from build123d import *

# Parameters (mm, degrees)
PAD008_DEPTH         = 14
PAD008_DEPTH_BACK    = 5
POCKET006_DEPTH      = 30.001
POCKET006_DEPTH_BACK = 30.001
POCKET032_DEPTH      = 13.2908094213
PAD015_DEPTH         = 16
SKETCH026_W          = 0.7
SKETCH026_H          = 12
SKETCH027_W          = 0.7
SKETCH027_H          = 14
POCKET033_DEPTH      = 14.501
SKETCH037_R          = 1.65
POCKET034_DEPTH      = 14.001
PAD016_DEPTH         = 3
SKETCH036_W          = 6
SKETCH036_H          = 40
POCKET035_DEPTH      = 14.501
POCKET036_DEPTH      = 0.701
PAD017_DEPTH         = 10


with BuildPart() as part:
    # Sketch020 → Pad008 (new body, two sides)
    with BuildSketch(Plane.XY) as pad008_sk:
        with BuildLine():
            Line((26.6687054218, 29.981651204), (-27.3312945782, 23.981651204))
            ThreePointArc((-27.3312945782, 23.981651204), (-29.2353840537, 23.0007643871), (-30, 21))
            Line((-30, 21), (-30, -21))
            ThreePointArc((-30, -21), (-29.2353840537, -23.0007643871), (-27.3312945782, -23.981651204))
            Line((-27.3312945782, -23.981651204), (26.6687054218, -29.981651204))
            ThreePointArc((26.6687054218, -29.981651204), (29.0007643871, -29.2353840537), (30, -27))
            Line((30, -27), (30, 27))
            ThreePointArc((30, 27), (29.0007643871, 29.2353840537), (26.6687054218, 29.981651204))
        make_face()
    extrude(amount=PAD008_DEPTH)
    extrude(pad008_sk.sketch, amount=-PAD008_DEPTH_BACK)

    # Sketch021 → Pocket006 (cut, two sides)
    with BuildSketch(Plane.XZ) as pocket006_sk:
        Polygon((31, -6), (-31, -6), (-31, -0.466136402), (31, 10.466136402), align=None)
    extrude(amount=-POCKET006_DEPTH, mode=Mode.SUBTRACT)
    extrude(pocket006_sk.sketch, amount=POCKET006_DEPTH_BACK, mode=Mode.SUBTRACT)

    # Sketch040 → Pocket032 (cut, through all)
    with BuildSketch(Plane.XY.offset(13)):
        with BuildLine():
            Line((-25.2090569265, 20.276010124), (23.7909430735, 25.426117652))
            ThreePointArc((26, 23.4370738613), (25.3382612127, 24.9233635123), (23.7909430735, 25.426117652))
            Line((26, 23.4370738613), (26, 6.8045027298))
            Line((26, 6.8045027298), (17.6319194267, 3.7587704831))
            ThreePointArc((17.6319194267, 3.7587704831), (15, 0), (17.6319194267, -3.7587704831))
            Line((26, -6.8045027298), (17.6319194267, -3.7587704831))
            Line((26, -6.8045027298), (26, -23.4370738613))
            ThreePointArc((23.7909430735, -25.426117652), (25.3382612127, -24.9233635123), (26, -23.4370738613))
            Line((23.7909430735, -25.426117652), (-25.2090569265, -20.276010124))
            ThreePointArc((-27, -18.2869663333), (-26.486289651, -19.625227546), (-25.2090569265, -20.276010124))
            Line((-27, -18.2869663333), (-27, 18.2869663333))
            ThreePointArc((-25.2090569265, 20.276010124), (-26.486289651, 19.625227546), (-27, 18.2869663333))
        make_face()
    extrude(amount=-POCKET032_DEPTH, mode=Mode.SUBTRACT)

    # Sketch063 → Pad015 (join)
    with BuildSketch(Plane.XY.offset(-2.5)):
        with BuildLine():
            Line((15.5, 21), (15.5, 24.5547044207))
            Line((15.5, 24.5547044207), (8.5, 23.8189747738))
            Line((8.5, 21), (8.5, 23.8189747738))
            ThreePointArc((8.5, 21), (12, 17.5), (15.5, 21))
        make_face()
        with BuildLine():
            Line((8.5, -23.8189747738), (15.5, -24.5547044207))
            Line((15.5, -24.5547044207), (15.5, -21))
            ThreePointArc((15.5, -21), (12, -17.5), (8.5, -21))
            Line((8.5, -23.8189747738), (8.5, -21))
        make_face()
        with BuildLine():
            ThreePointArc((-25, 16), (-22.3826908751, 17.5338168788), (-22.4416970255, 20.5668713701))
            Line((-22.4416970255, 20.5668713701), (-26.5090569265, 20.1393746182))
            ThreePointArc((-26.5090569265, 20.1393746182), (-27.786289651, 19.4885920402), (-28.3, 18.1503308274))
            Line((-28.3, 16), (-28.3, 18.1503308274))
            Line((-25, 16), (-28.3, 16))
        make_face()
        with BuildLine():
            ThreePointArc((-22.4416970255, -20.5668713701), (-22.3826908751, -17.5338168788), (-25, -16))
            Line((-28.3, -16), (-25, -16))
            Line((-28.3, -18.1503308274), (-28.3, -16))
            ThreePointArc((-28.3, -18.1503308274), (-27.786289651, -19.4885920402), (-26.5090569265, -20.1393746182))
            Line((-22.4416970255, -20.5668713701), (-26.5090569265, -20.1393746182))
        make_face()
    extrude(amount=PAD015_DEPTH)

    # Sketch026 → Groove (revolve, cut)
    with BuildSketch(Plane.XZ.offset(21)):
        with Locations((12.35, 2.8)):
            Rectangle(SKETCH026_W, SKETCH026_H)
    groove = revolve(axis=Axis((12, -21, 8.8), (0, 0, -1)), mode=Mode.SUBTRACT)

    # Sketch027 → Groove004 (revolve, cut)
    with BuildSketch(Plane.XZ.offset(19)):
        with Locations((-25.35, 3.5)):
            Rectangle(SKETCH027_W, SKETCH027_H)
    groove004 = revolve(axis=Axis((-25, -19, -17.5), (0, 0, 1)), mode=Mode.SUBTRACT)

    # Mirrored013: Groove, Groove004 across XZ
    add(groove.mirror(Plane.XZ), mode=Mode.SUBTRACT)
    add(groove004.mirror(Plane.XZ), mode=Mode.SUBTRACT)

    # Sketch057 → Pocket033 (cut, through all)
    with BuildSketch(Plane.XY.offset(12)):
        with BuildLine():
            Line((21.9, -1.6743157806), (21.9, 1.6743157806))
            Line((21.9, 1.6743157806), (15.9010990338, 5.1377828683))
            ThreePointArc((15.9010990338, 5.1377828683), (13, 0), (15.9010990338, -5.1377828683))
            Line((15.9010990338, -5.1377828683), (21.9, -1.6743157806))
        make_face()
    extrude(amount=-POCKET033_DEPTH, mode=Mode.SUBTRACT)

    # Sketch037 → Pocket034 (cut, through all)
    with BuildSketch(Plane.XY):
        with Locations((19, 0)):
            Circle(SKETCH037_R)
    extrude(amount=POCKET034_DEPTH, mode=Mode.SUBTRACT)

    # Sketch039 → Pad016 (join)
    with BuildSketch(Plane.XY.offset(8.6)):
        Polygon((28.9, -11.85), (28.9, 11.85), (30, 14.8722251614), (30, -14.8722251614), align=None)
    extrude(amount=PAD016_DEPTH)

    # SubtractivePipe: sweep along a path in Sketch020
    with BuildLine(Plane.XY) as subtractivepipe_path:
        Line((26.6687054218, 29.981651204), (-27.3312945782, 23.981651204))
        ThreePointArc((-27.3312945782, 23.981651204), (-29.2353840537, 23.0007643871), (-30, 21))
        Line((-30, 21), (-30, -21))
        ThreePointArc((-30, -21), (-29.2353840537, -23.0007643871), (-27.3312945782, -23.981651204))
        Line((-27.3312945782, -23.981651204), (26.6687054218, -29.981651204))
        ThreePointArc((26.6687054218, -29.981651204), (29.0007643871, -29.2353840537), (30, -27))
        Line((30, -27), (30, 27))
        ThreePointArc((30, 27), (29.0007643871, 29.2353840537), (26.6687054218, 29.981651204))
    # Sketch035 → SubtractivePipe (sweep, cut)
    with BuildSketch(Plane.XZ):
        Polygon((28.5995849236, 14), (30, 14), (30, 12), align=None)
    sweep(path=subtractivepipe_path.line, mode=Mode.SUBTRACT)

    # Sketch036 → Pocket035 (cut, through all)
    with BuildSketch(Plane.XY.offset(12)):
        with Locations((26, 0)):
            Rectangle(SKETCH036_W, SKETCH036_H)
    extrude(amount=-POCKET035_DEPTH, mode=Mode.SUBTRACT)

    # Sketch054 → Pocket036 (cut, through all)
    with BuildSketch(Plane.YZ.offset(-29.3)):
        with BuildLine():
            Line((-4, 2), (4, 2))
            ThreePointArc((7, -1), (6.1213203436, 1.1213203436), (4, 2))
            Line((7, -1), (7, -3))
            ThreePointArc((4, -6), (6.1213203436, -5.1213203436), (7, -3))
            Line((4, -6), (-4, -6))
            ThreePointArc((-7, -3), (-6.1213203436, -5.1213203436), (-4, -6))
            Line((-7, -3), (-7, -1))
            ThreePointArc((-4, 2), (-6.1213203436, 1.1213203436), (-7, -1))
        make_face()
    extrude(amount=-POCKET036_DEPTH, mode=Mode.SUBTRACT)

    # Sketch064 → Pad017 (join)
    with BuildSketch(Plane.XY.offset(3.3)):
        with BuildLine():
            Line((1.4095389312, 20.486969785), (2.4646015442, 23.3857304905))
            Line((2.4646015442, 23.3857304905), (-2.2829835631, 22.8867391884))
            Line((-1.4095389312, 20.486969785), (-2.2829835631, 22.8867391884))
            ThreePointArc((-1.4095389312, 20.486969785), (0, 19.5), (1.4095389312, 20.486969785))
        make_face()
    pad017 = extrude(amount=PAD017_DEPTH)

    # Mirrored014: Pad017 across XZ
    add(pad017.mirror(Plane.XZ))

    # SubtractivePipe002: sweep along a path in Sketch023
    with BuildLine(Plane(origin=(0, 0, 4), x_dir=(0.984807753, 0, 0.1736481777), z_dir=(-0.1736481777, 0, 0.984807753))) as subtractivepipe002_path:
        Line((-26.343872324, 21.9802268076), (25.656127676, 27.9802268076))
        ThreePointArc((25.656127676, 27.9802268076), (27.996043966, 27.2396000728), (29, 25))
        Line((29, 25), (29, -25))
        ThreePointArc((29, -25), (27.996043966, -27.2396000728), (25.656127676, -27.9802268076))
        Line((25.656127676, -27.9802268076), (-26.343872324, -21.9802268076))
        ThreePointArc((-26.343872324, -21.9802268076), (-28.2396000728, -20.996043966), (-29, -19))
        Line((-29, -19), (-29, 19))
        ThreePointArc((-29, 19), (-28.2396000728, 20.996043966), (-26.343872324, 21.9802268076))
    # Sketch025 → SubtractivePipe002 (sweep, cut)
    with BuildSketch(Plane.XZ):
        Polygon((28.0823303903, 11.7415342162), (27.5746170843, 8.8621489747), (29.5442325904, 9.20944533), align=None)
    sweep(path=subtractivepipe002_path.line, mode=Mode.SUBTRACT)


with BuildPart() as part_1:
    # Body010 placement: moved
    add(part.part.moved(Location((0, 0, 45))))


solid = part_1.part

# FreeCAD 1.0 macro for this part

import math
import FreeCAD as App
import Part
import Sketcher
from FreeCAD import Vector
Q = App.Units.Quantity


def add_polygon(sketch, points):
    """Adds a closed chain of lines whose ends are joined by coincident constraints."""
    first, n = sketch.GeometryCount, len(points)
    for a, b in zip(points, points[1:] + points[:1]):
        sketch.addGeometry(Part.LineSegment(App.Vector(*a, 0), App.Vector(*b, 0)), False)
    for i in range(n):
        sketch.addConstraint(Sketcher.Constraint("Coincident", first + i, 2, first + (i + 1) % n, 1))

doc = App.newDocument("Part")
body = doc.addObject("PartDesign::Body", "Body")

# Sketch on XY plane
sketch1 = doc.addObject("Sketcher::SketchObject", "Sketch")
body.addObject(sketch1)
sketch1.AttachmentSupport = (doc.XY_Plane, [""])
sketch1.MapMode = "FlatFace"
sketch1.addGeometry(Part.LineSegment(Vector(26.7, 30, 0), Vector(-27.3, 24, 0)), False)
sketch1.addGeometry(Part.ArcOfCircle(Part.Circle(Vector(-27, 21, 0), Vector(0, 0, 1), 3), math.radians(96), math.radians(180)), False)
sketch1.addGeometry(Part.LineSegment(Vector(-30, 21, 0), Vector(-30, -21, 0)), False)
sketch1.addGeometry(Part.ArcOfCircle(Part.Circle(Vector(-27, -21, 0), Vector(0, 0, 1), 3), math.radians(180), math.radians(264)), False)
sketch1.addGeometry(Part.LineSegment(Vector(-27.3, -24, 0), Vector(26.7, -30, 0)), False)
sketch1.addGeometry(Part.ArcOfCircle(Part.Circle(Vector(27, -27, 0), Vector(0, 0, 1), 3), math.radians(-96), math.radians(0)), False)
sketch1.addGeometry(Part.LineSegment(Vector(30, -27, 0), Vector(30, 27, 0)), False)
sketch1.addGeometry(Part.ArcOfCircle(Part.Circle(Vector(27, 27, 0), Vector(0, 0, 1), 3), math.radians(0), math.radians(96)), False)
sketch1.addConstraint(Sketcher.Constraint("Tangent", 0, 2, 1, 1))
sketch1.addConstraint(Sketcher.Constraint("Tangent", 1, 2, 2, 1))
sketch1.addConstraint(Sketcher.Constraint("Tangent", 2, 2, 3, 1))
sketch1.addConstraint(Sketcher.Constraint("Tangent", 3, 2, 4, 1))
sketch1.addConstraint(Sketcher.Constraint("Tangent", 4, 2, 5, 1))
sketch1.addConstraint(Sketcher.Constraint("Tangent", 5, 2, 6, 1))
sketch1.addConstraint(Sketcher.Constraint("Tangent", 6, 2, 7, 1))
sketch1.addConstraint(Sketcher.Constraint("Tangent", 7, 2, 0, 1))
sketch1.addConstraint(Sketcher.Constraint("Vertical", 2))
sketch1.addConstraint(Sketcher.Constraint("Vertical", 6))
sketch1.addConstraint(Sketcher.Constraint("Equal", 1, 3))
sketch1.addConstraint(Sketcher.Constraint("Equal", 3, 5))
sketch1.addConstraint(Sketcher.Constraint("Equal", 5, 7))
sketch1.addConstraint(Sketcher.Constraint("Symmetric", 0, 2, 3, 2, -1))
sketch1.addConstraint(Sketcher.Constraint("Radius", 1, 3.0))
sketch1.addConstraint(Sketcher.Constraint("DistanceY", 2, 2, 2, 1, 42.0))
sketch1.addConstraint(Sketcher.Constraint("DistanceY", 6, 1, 6, 2, 54.0))
sketch1.addConstraint(Sketcher.Constraint("DistanceX", 1, 3, -1, 1, 27.0))
sketch1.addConstraint(Sketcher.Constraint("DistanceX", -1, 1, 5, 3, 27.0))
pad1 = doc.addObject("PartDesign::Pad", "Pad")
body.addObject(pad1)
pad1.Profile = sketch1
pad1.Type = "TwoLengths"
pad1.Length = 14
pad1.Length2 = 5

# Sketch on XZ plane
sketch2 = doc.addObject("Sketcher::SketchObject", "Sketch001")
body.addObject(sketch2)
sketch2.AttachmentSupport = (doc.XZ_Plane, [""])
sketch2.MapMode = "FlatFace"
add_polygon(sketch2, [(-31, -6), (31, -6), (31, 10), (-31, 0)])  # lines 0-3
sketch2.addConstraint(Sketcher.Constraint("Horizontal", 0))
sketch2.addConstraint(Sketcher.Constraint("Vertical", 1))
sketch2.addConstraint(Sketcher.Constraint("Vertical", 3))
sketch2.addConstraint(Sketcher.Constraint("DistanceX", 0, 1, 0, 2, 62.0))
sketch2.addConstraint(Sketcher.Constraint("Angle", 2, Q("-170 deg")))
sketch2.addConstraint(Sketcher.Constraint("DistanceX", -1, 1, 0, 2, 31.0))
sketch2.addConstraint(Sketcher.Constraint("DistanceY", 0, 2, -1, 1, 6.0))
sketch2.addConstraint(Sketcher.Constraint("DistanceY", 1, 1, 1, 2, 16.466136))
pocket1 = doc.addObject("PartDesign::Pocket", "Pocket")
body.addObject(pocket1)
pocket1.Profile = sketch2
pocket1.Type = "ThroughAll"
pocket1.Midplane = True

# Sketch on XY plane
sketch3 = doc.addObject("Sketcher::SketchObject", "Sketch002")
body.addObject(sketch3)
sketch3.AttachmentSupport = (doc.XY_Plane, [""])
sketch3.MapMode = "FlatFace"
sketch3.AttachmentOffset = App.Placement(Vector(0, 0, 13), App.Rotation())
sketch3.addGeometry(Part.LineSegment(Vector(23.8, 25.4, 0), Vector(-25.2, 20.3, 0)), False)
sketch3.addGeometry(Part.ArcOfCircle(Part.Circle(Vector(-25, 18.3, 0), Vector(0, 0, 1), 2), math.radians(96), math.radians(180)), False)
sketch3.addGeometry(Part.LineSegment(Vector(-27, 18.3, 0), Vector(-27, -18.3, 0)), False)
sketch3.addGeometry(Part.ArcOfCircle(Part.Circle(Vector(-25, -18.3, 0), Vector(0, 0, 1), 2), math.radians(180), math.radians(264)), False)
sketch3.addGeometry(Part.LineSegment(Vector(-25.2, -20.3, 0), Vector(23.8, -25.4, 0)), False)
sketch3.addGeometry(Part.ArcOfCircle(Part.Circle(Vector(24, -23.4, 0), Vector(0, 0, 1), 2), math.radians(-96), math.radians(0)), False)
sketch3.addGeometry(Part.LineSegment(Vector(26, -23.4, 0), Vector(26, -6.8, 0)), False)
sketch3.addGeometry(Part.LineSegment(Vector(26, -6.8, 0), Vector(17.6, -3.8, 0)), False)
sketch3.addGeometry(Part.ArcOfCircle(Part.Circle(Vector(19, 0, 0), Vector(0, 0, 1), 4), math.radians(110), math.radians(250)), False)
sketch3.addGeometry(Part.LineSegment(Vector(17.6, 3.8, 0), Vector(26, 6.8, 0)), False)
sketch3.addGeometry(Part.LineSegment(Vector(26, 6.8, 0), Vector(26, 23.4, 0)), False)
sketch3.addGeometry(Part.ArcOfCircle(Part.Circle(Vector(24, 23.4, 0), Vector(0, 0, 1), 2), math.radians(0), math.radians(96)), False)
sketch3.addConstraint(Sketcher.Constraint("Tangent", 0, 2, 1, 1))
sketch3.addConstraint(Sketcher.Constraint("Tangent", 1, 2, 2, 1))
sketch3.addConstraint(Sketcher.Constraint("Tangent", 2, 2, 3, 1))
sketch3.addConstraint(Sketcher.Constraint("Tangent", 3, 2, 4, 1))
sketch3.addConstraint(Sketcher.Constraint("Tangent", 4, 2, 5, 1))
sketch3.addConstraint(Sketcher.Constraint("Tangent", 5, 2, 6, 1))
sketch3.addConstraint(Sketcher.Constraint("Coincident", 6, 2, 7, 1))
sketch3.addConstraint(Sketcher.Constraint("Tangent", 7, 2, 8, 2))
sketch3.addConstraint(Sketcher.Constraint("Tangent", 8, 1, 9, 1))
sketch3.addConstraint(Sketcher.Constraint("Coincident", 9, 2, 10, 1))
sketch3.addConstraint(Sketcher.Constraint("Tangent", 10, 2, 11, 1))
sketch3.addConstraint(Sketcher.Constraint("Tangent", 11, 2, 0, 1))
sketch3.addConstraint(Sketcher.Constraint("Vertical", 2))
sketch3.addConstraint(Sketcher.Constraint("Vertical", 6))
sketch3.addConstraint(Sketcher.Constraint("Vertical", 10))
sketch3.addConstraint(Sketcher.Constraint("Equal", 1, 3))
sketch3.addConstraint(Sketcher.Constraint("Equal", 3, 5))
sketch3.addConstraint(Sketcher.Constraint("Equal", 5, 11))
sketch3.addConstraint(Sketcher.Constraint("Symmetric", 5, 3, 11, 3, -1))
sketch3.addConstraint(Sketcher.Constraint("Symmetric", 7, 2, 8, 1, -1))
sketch3.addConstraint(Sketcher.Constraint("Vertical", 0, 2, 3, 2))
sketch3.addConstraint(Sketcher.Constraint("Radius", 1, 2.0))
sketch3.addConstraint(Sketcher.Constraint("Radius", 8, 4.0))
sketch3.addConstraint(Sketcher.Constraint("Angle", 0, Q("-174 deg")))
sketch3.addConstraint(Sketcher.Constraint("Angle", 7, Q("160 deg")))
sketch3.addConstraint(Sketcher.Constraint("DistanceX", 1, 3, -1, 1, 25.0))
sketch3.addConstraint(Sketcher.Constraint("DistanceX", -1, 1, 5, 3, 24.0))
sketch3.addConstraint(Sketcher.Constraint("DistanceX", -1, 1, 8, 3, 19.0))
sketch3.addConstraint(Sketcher.Constraint("DistanceY", 6, 1, 6, 2, 16.632571))
pocket2 = doc.addObject("PartDesign::Pocket", "Pocket001")
body.addObject(pocket2)
pocket2.Profile = sketch3
pocket2.Type = "ThroughAll"

# Sketch on XY plane
sketch4 = doc.addObject("Sketcher::SketchObject", "Sketch003")
body.addObject(sketch4)
sketch4.AttachmentSupport = (doc.XY_Plane, [""])
sketch4.MapMode = "FlatFace"
sketch4.AttachmentOffset = App.Placement(Vector(0, 0, -2.5), App.Rotation())
sketch4.addGeometry(Part.LineSegment(Vector(15.5, 21, 0), Vector(15.5, 24.6, 0)), False)
sketch4.addGeometry(Part.LineSegment(Vector(15.5, 24.6, 0), Vector(8.5, 23.8, 0)), False)
sketch4.addGeometry(Part.LineSegment(Vector(8.5, 23.8, 0), Vector(8.5, 21, 0)), False)
sketch4.addGeometry(Part.ArcOfCircle(Part.Circle(Vector(12, 21, 0), Vector(0, 0, 1), 3.5), math.radians(180), math.radians(360)), False)
sketch4.addGeometry(Part.LineSegment(Vector(8.5, -23.8, 0), Vector(15.5, -24.6, 0)), False)
sketch4.addGeometry(Part.LineSegment(Vector(15.5, -24.6, 0), Vector(15.5, -21, 0)), False)
sketch4.addGeometry(Part.ArcOfCircle(Part.Circle(Vector(12, -21, 0), Vector(0, 0, 1), 3.5), math.radians(0), math.radians(180)), False)
sketch4.addGeometry(Part.LineSegment(Vector(8.5, -21, 0), Vector(8.5, -23.8, 0)), False)
sketch4.addGeometry(Part.ArcOfCircle(Part.Circle(Vector(-25, 19, 0), Vector(0, 0, 1), 3), math.radians(-90), math.radians(31)), False)
sketch4.addGeometry(Part.LineSegment(Vector(-22.4, 20.6, 0), Vector(-26.5, 20.1, 0)), False)
sketch4.addGeometry(Part.ArcOfCircle(Part.Circle(Vector(-26.3, 18.2, 0), Vector(0, 0, 1), 2), math.radians(96), math.radians(180)), False)
sketch4.addGeometry(Part.LineSegment(Vector(-28.3, 18.2, 0), Vector(-28.3, 16, 0)), False)
sketch4.addGeometry(Part.LineSegment(Vector(-28.3, 16, 0), Vector(-25, 16, 0)), False)
sketch4.addGeometry(Part.ArcOfCircle(Part.Circle(Vector(-25, -19, 0), Vector(0, 0, 1), 3), math.radians(-31), math.radians(90)), False)
sketch4.addGeometry(Part.LineSegment(Vector(-25, -16, 0), Vector(-28.3, -16, 0)), False)
sketch4.addGeometry(Part.LineSegment(Vector(-28.3, -16, 0), Vector(-28.3, -18.2, 0)), False)
sketch4.addGeometry(Part.ArcOfCircle(Part.Circle(Vector(-26.3, -18.2, 0), Vector(0, 0, 1), 2), math.radians(180), math.radians(264)), False)
sketch4.addGeometry(Part.LineSegment(Vector(-26.5, -20.1, 0), Vector(-22.4, -20.6, 0)), False)
sketch4.addConstraint(Sketcher.Constraint("Coincident", 0, 2, 1, 1))
sketch4.addConstraint(Sketcher.Constraint("Coincident", 1, 2, 2, 1))
sketch4.addConstraint(Sketcher.Constraint("Tangent", 2, 2, 3, 1))
sketch4.addConstraint(Sketcher.Constraint("Tangent", 3, 2, 0, 1))
sketch4.addConstraint(Sketcher.Constraint("Coincident", 4, 2, 5, 1))
sketch4.addConstraint(Sketcher.Constraint("Tangent", 5, 2, 6, 1))
sketch4.addConstraint(Sketcher.Constraint("Tangent", 6, 2, 7, 1))
sketch4.addConstraint(Sketcher.Constraint("Coincident", 7, 2, 4, 1))
sketch4.addConstraint(Sketcher.Constraint("Coincident", 8, 2, 9, 1))
sketch4.addConstraint(Sketcher.Constraint("Tangent", 9, 2, 10, 1))
sketch4.addConstraint(Sketcher.Constraint("Tangent", 10, 2, 11, 1))
sketch4.addConstraint(Sketcher.Constraint("Coincident", 11, 2, 12, 1))
sketch4.addConstraint(Sketcher.Constraint("Tangent", 12, 2, 8, 1))
sketch4.addConstraint(Sketcher.Constraint("Tangent", 13, 2, 14, 1))
sketch4.addConstraint(Sketcher.Constraint("Coincident", 14, 2, 15, 1))
sketch4.addConstraint(Sketcher.Constraint("Tangent", 15, 2, 16, 1))
sketch4.addConstraint(Sketcher.Constraint("Tangent", 16, 2, 17, 1))
sketch4.addConstraint(Sketcher.Constraint("Coincident", 17, 2, 13, 1))
sketch4.addConstraint(Sketcher.Constraint("Vertical", 0))
sketch4.addConstraint(Sketcher.Constraint("Vertical", 2))
sketch4.addConstraint(Sketcher.Constraint("Vertical", 5))
sketch4.addConstraint(Sketcher.Constraint("Vertical", 7))
sketch4.addConstraint(Sketcher.Constraint("Vertical", 11))
sketch4.addConstraint(Sketcher.Constraint("Horizontal", 12))
sketch4.addConstraint(Sketcher.Constraint("Horizontal", 14))
sketch4.addConstraint(Sketcher.Constraint("Vertical", 15))
sketch4.addConstraint(Sketcher.Constraint("Equal", 3, 6))
sketch4.addConstraint(Sketcher.Constraint("Equal", 8, 13))
sketch4.addConstraint(Sketcher.Constraint("Equal", 10, 16))
sketch4.addConstraint(Sketcher.Constraint("Symmetric", 3, 3, 6, 3, -1))
sketch4.addConstraint(Sketcher.Constraint("Symmetric", 8, 3, 13, 3, -1))
sketch4.addConstraint(Sketcher.Constraint("Symmetric", 10, 3, 16, 3, -1))
sketch4.addConstraint(Sketcher.Constraint("Parallel", 1, 9))
sketch4.addConstraint(Sketcher.Constraint("Parallel", 4, 17))
sketch4.addConstraint(Sketcher.Constraint("Vertical", 9, 2, 16, 2))
sketch4.addConstraint(Sketcher.Constraint("Equal", 0, 5))
sketch4.addConstraint(Sketcher.Constraint("Radius", 8, 3.0))
sketch4.addConstraint(Sketcher.Constraint("Radius", 10, 2.0))
sketch4.addConstraint(Sketcher.Constraint("Radius", 3, 3.5))
sketch4.addConstraint(Sketcher.Constraint("Angle", 1, Q("-174 deg")))
sketch4.addConstraint(Sketcher.Constraint("DistanceX", 12, 1, 12, 2, 3.3))
sketch4.addConstraint(Sketcher.Constraint("DistanceX", -1, 1, 3, 3, 12.0))
sketch4.addConstraint(Sketcher.Constraint("DistanceY", -1, 1, 3, 3, 21.0))
sketch4.addConstraint(Sketcher.Constraint("DistanceX", 8, 3, -1, 1, 25.0))
sketch4.addConstraint(Sketcher.Constraint("DistanceY", -1, 1, 8, 3, 19.0))
sketch4.addConstraint(Sketcher.Constraint("DistanceY", 11, 2, 11, 1, 2.150331))
sketch4.addConstraint(Sketcher.Constraint("DistanceY", 9, 2, 1, 2, 3.6796))
pad2 = doc.addObject("PartDesign::Pad", "Pad001")
body.addObject(pad2)
pad2.Profile = sketch4
pad2.Length = 16

# Sketch on XZ plane
sketch5 = doc.addObject("Sketcher::SketchObject", "Sketch004")
body.addObject(sketch5)
sketch5.AttachmentSupport = (doc.XZ_Plane, [""])
sketch5.MapMode = "FlatFace"
sketch5.AttachmentOffset = App.Placement(Vector(0, 0, 21), App.Rotation())
add_polygon(sketch5, [(12, 8.8), (12, -3.2), (12.7, -3.2), (12.7, 8.8)])  # lines 0-3
sketch5.addGeometry(Part.LineSegment(Vector(12, 8.8, 0), Vector(12, -3.2, 0)), True)  # axis
sketch5.addConstraint(Sketcher.Constraint("Vertical", 0))
sketch5.addConstraint(Sketcher.Constraint("Horizontal", 1))
sketch5.addConstraint(Sketcher.Constraint("Vertical", 2))
sketch5.addConstraint(Sketcher.Constraint("Horizontal", 3))
sketch5.addConstraint(Sketcher.Constraint("Vertical", 4))
sketch5.addConstraint(Sketcher.Constraint("Coincident", 4, 1, 3, 2))
sketch5.addConstraint(Sketcher.Constraint("Horizontal", 1, 2, 4, 2))
sketch5.addConstraint(Sketcher.Constraint("DistanceY", 0, 2, 0, 1, 12.0))
sketch5.addConstraint(Sketcher.Constraint("DistanceX", 1, 1, 1, 2, 0.7))
sketch5.addConstraint(Sketcher.Constraint("DistanceX", -1, 1, 0, 2, 12.0))
sketch5.addConstraint(Sketcher.Constraint("DistanceY", 0, 2, -1, 1, 3.2))
groove = doc.addObject("PartDesign::Groove", "Groove")
body.addObject(groove)
groove.Profile = sketch5
groove.ReferenceAxis = (sketch5, ["Axis0"])
groove.Angle = 360

# Sketch on XZ plane
sketch6 = doc.addObject("Sketcher::SketchObject", "Sketch005")
body.addObject(sketch6)
sketch6.AttachmentSupport = (doc.XZ_Plane, [""])
sketch6.MapMode = "FlatFace"
sketch6.AttachmentOffset = App.Placement(Vector(0, 0, 19), App.Rotation())
add_polygon(sketch6, [(-25.7, 10.5), (-25.7, -3.5), (-25, -3.5), (-25, 10.5)])  # lines 0-3
sketch6.addGeometry(Part.LineSegment(Vector(-25, -3.5, 0), Vector(-25, 10.5, 0)), True)  # axis
sketch6.addConstraint(Sketcher.Constraint("Vertical", 0))
sketch6.addConstraint(Sketcher.Constraint("Horizontal", 1))
sketch6.addConstraint(Sketcher.Constraint("Vertical", 2))
sketch6.addConstraint(Sketcher.Constraint("Horizontal", 3))
sketch6.addConstraint(Sketcher.Constraint("Vertical", 4))
sketch6.addConstraint(Sketcher.Constraint("Coincident", 4, 1, 1, 2))
sketch6.addConstraint(Sketcher.Constraint("Horizontal", 3, 2, 4, 2))
sketch6.addConstraint(Sketcher.Constraint("DistanceY", 0, 2, 0, 1, 14.0))
sketch6.addConstraint(Sketcher.Constraint("DistanceX", 1, 1, 1, 2, 0.7))
sketch6.addConstraint(Sketcher.Constraint("DistanceX", 1, 2, -1, 1, 25.0))
sketch6.addConstraint(Sketcher.Constraint("DistanceY", 0, 2, -1, 1, 3.5))
groove2 = doc.addObject("PartDesign::Groove", "Groove001")
body.addObject(groove2)
groove2.Profile = sketch6
groove2.ReferenceAxis = (sketch6, ["Axis0"])
groove2.Angle = 360
doc.recompute()

mirrored = doc.addObject("PartDesign::Mirrored", "Mirrored")
body.addObject(mirrored)
mirrored.Originals = [groove, groove2]
mirrored.MirrorPlane = (doc.XZ_Plane, [""])
body.Tip = mirrored

# Sketch on XY plane
sketch7 = doc.addObject("Sketcher::SketchObject", "Sketch006")
body.addObject(sketch7)
sketch7.AttachmentSupport = (doc.XY_Plane, [""])
sketch7.MapMode = "FlatFace"
sketch7.AttachmentOffset = App.Placement(Vector(0, 0, 12), App.Rotation())
sketch7.addGeometry(Part.LineSegment(Vector(21.9, -1.7, 0), Vector(21.9, 1.7, 0)), False)
sketch7.addGeometry(Part.LineSegment(Vector(21.9, 1.7, 0), Vector(15.9, 5.1, 0)), False)
sketch7.addGeometry(Part.ArcOfCircle(Part.Circle(Vector(19, 0, 0), Vector(0, 0, 1), 6), math.radians(121), math.radians(239)), False)
sketch7.addGeometry(Part.LineSegment(Vector(15.9, -5.1, 0), Vector(21.9, -1.7, 0)), False)
sketch7.addConstraint(Sketcher.Constraint("Coincident", 0, 2, 1, 1))
sketch7.addConstraint(Sketcher.Constraint("Coincident", 1, 2, 2, 1))
sketch7.addConstraint(Sketcher.Constraint("Coincident", 2, 2, 3, 1))
sketch7.addConstraint(Sketcher.Constraint("Coincident", 3, 2, 0, 1))
sketch7.addConstraint(Sketcher.Constraint("Vertical", 0))
sketch7.addConstraint(Sketcher.Constraint("Symmetric", 1, 2, 2, 2, -1))
sketch7.addConstraint(Sketcher.Constraint("Equal", 1, 3))
sketch7.addConstraint(Sketcher.Constraint("Radius", 2, 6.0))
sketch7.addConstraint(Sketcher.Constraint("Angle", 1, Q("150 deg")))
sketch7.addConstraint(Sketcher.Constraint("DistanceX", -1, 1, 2, 3, 19.0))
sketch7.addConstraint(Sketcher.Constraint("DistanceX", -1, 1, 0, 2, 21.9))
sketch7.addConstraint(Sketcher.Constraint("DistanceY", 0, 1, 0, 2, 3.348632))
pocket3 = doc.addObject("PartDesign::Pocket", "Pocket002")
body.addObject(pocket3)
pocket3.Profile = sketch7
pocket3.Type = "ThroughAll"

# Sketch on XY plane
sketch8 = doc.addObject("Sketcher::SketchObject", "Sketch007")
body.addObject(sketch8)
sketch8.AttachmentSupport = (doc.XY_Plane, [""])
sketch8.MapMode = "FlatFace"
sketch8.addGeometry(Part.Circle(Vector(19, 0, 0), Vector(0, 0, 1), 1.6), False)
sketch8.addConstraint(Sketcher.Constraint("PointOnObject", 0, 3, -1))
sketch8.addConstraint(Sketcher.Constraint("Diameter", 0, 3.3))
sketch8.addConstraint(Sketcher.Constraint("DistanceX", -1, 1, 0, 3, 19.0))
pocket4 = doc.addObject("PartDesign::Pocket", "Pocket003")
body.addObject(pocket4)
pocket4.Profile = sketch8
pocket4.Type = "ThroughAll"
pocket4.Reversed = True

# Sketch on XY plane
sketch9 = doc.addObject("Sketcher::SketchObject", "Sketch008")
body.addObject(sketch9)
sketch9.AttachmentSupport = (doc.XY_Plane, [""])
sketch9.MapMode = "FlatFace"
sketch9.AttachmentOffset = App.Placement(Vector(0, 0, 8.6), App.Rotation())
add_polygon(sketch9, [(28.9, 11.8), (28.9, -11.8), (30, -14.9), (30, 14.9)])  # lines 0-3
sketch9.addConstraint(Sketcher.Constraint("Vertical", 0))
sketch9.addConstraint(Sketcher.Constraint("Vertical", 2))
sketch9.addConstraint(Sketcher.Constraint("Equal", 1, 3))
sketch9.addConstraint(Sketcher.Constraint("Angle", 1, Q("-70 deg")))
sketch9.addConstraint(Sketcher.Constraint("DistanceY", 0, 2, 0, 1, 23.7))
sketch9.addConstraint(Sketcher.Constraint("DistanceX", -1, 1, 1, 2, 30.0))
sketch9.addConstraint(Sketcher.Constraint("DistanceX", -1, 1, 0, 2, 28.9))
sketch9.addConstraint(Sketcher.Constraint("DistanceY", 0, 2, -1, 1, 11.85))
pad3 = doc.addObject("PartDesign::Pad", "Pad002")
body.addObject(pad3)
pad3.Profile = sketch9
pad3.Length = 3

# Sketch on XZ plane
sketch10 = doc.addObject("Sketcher::SketchObject", "Sketch009")
body.addObject(sketch10)
sketch10.AttachmentSupport = (doc.XZ_Plane, [""])
sketch10.MapMode = "FlatFace"
add_polygon(sketch10, [(30, 14), (28.6, 14), (30, 12)])  # lines 0-2
sketch10.addConstraint(Sketcher.Constraint("Horizontal", 0))
sketch10.addConstraint(Sketcher.Constraint("Vertical", 2))
sketch10.addConstraint(Sketcher.Constraint("DistanceY", 2, 1, 2, 2, 2.0))
sketch10.addConstraint(Sketcher.Constraint("Angle", 1, Q("-55 deg")))
sketch10.addConstraint(Sketcher.Constraint("DistanceY", -1, 1, 0, 2, 14.0))
sketch10.addConstraint(Sketcher.Constraint("DistanceX", -1, 1, 1, 2, 30.0))

# Sketch on XY plane
sketch11 = doc.addObject("Sketcher::SketchObject", "Sketch010")
body.addObject(sketch11)
sketch11.AttachmentSupport = (doc.XY_Plane, [""])
sketch11.MapMode = "FlatFace"
sketch11.addGeometry(Part.LineSegment(Vector(26.7, 30, 0), Vector(-27.3, 24, 0)), False)
sketch11.addGeometry(Part.ArcOfCircle(Part.Circle(Vector(-27, 21, 0), Vector(0, 0, 1), 3), math.radians(96), math.radians(180)), False)
sketch11.addGeometry(Part.LineSegment(Vector(-30, 21, 0), Vector(-30, -21, 0)), False)
sketch11.addGeometry(Part.ArcOfCircle(Part.Circle(Vector(-27, -21, 0), Vector(0, 0, 1), 3), math.radians(180), math.radians(264)), False)
sketch11.addGeometry(Part.LineSegment(Vector(-27.3, -24, 0), Vector(26.7, -30, 0)), False)
sketch11.addGeometry(Part.ArcOfCircle(Part.Circle(Vector(27, -27, 0), Vector(0, 0, 1), 3), math.radians(-96), math.radians(0)), False)
sketch11.addGeometry(Part.LineSegment(Vector(30, -27, 0), Vector(30, 27, 0)), False)
sketch11.addGeometry(Part.ArcOfCircle(Part.Circle(Vector(27, 27, 0), Vector(0, 0, 1), 3), math.radians(0), math.radians(96)), False)
sketch11.addConstraint(Sketcher.Constraint("Tangent", 0, 2, 1, 1))
sketch11.addConstraint(Sketcher.Constraint("Tangent", 1, 2, 2, 1))
sketch11.addConstraint(Sketcher.Constraint("Tangent", 2, 2, 3, 1))
sketch11.addConstraint(Sketcher.Constraint("Tangent", 3, 2, 4, 1))
sketch11.addConstraint(Sketcher.Constraint("Tangent", 4, 2, 5, 1))
sketch11.addConstraint(Sketcher.Constraint("Tangent", 5, 2, 6, 1))
sketch11.addConstraint(Sketcher.Constraint("Tangent", 6, 2, 7, 1))
sketch11.addConstraint(Sketcher.Constraint("Tangent", 7, 2, 0, 1))
sketch11.addConstraint(Sketcher.Constraint("Vertical", 2))
sketch11.addConstraint(Sketcher.Constraint("Vertical", 6))
sketch11.addConstraint(Sketcher.Constraint("Equal", 1, 3))
sketch11.addConstraint(Sketcher.Constraint("Equal", 3, 5))
sketch11.addConstraint(Sketcher.Constraint("Equal", 5, 7))
sketch11.addConstraint(Sketcher.Constraint("Symmetric", 0, 2, 3, 2, -1))
sketch11.addConstraint(Sketcher.Constraint("Radius", 1, 3.0))
sketch11.addConstraint(Sketcher.Constraint("DistanceY", 2, 2, 2, 1, 42.0))
sketch11.addConstraint(Sketcher.Constraint("DistanceY", 6, 1, 6, 2, 54.0))
sketch11.addConstraint(Sketcher.Constraint("DistanceX", 1, 3, -1, 1, 27.0))
sketch11.addConstraint(Sketcher.Constraint("DistanceX", -1, 1, 5, 3, 27.0))
doc.recompute()

subtractivepipe = doc.addObject("PartDesign::SubtractivePipe", "SubtractivePipe")
body.addObject(subtractivepipe)
subtractivepipe.Profile = sketch10
subtractivepipe.Spine = (sketch11, ["Edge1", "Edge2", "Edge3", "Edge4", "Edge5", "Edge6", "Edge7", "Edge8"])

# Sketch on XY plane
sketch12 = doc.addObject("Sketcher::SketchObject", "Sketch011")
body.addObject(sketch12)
sketch12.AttachmentSupport = (doc.XY_Plane, [""])
sketch12.MapMode = "FlatFace"
sketch12.AttachmentOffset = App.Placement(Vector(0, 0, 12), App.Rotation())
add_polygon(sketch12, [(23, 20), (23, -20), (29, -20), (29, 20)])  # lines 0-3
sketch12.addConstraint(Sketcher.Constraint("Vertical", 0))
sketch12.addConstraint(Sketcher.Constraint("Horizontal", 1))
sketch12.addConstraint(Sketcher.Constraint("Vertical", 2))
sketch12.addConstraint(Sketcher.Constraint("Horizontal", 3))
sketch12.addConstraint(Sketcher.Constraint("DistanceX", 1, 1, 1, 2, 6.0))
sketch12.addConstraint(Sketcher.Constraint("DistanceY", 0, 2, 0, 1, 40.0))
sketch12.addConstraint(Sketcher.Constraint("DistanceX", -1, 1, 0, 2, 23.0))
sketch12.addConstraint(Sketcher.Constraint("DistanceY", 0, 2, -1, 1, 20.0))
pocket5 = doc.addObject("PartDesign::Pocket", "Pocket004")
body.addObject(pocket5)
pocket5.Profile = sketch12
pocket5.Type = "ThroughAll"

# Sketch on YZ plane
sketch13 = doc.addObject("Sketcher::SketchObject", "Sketch012")
body.addObject(sketch13)
sketch13.AttachmentSupport = (doc.YZ_Plane, [""])
sketch13.MapMode = "FlatFace"
sketch13.AttachmentOffset = App.Placement(Vector(0, 0, -29.3), App.Rotation())
sketch13.addGeometry(Part.LineSegment(Vector(4, 2, 0), Vector(-4, 2, 0)), False)
sketch13.addGeometry(Part.ArcOfCircle(Part.Circle(Vector(-4, -1, 0), Vector(0, 0, 1), 3), math.radians(90), math.radians(180)), False)
sketch13.addGeometry(Part.LineSegment(Vector(-7, -1, 0), Vector(-7, -3, 0)), False)
sketch13.addGeometry(Part.ArcOfCircle(Part.Circle(Vector(-4, -3, 0), Vector(0, 0, 1), 3), math.radians(180), math.radians(270)), False)
sketch13.addGeometry(Part.LineSegment(Vector(-4, -6, 0), Vector(4, -6, 0)), False)
sketch13.addGeometry(Part.ArcOfCircle(Part.Circle(Vector(4, -3, 0), Vector(0, 0, 1), 3), math.radians(-90), math.radians(0)), False)
sketch13.addGeometry(Part.LineSegment(Vector(7, -3, 0), Vector(7, -1, 0)), False)
sketch13.addGeometry(Part.ArcOfCircle(Part.Circle(Vector(4, -1, 0), Vector(0, 0, 1), 3), math.radians(0), math.radians(90)), False)
sketch13.addConstraint(Sketcher.Constraint("Tangent", 0, 2, 1, 1))
sketch13.addConstraint(Sketcher.Constraint("Tangent", 1, 2, 2, 1))
sketch13.addConstraint(Sketcher.Constraint("Tangent", 2, 2, 3, 1))
sketch13.addConstraint(Sketcher.Constraint("Tangent", 3, 2, 4, 1))
sketch13.addConstraint(Sketcher.Constraint("Tangent", 4, 2, 5, 1))
sketch13.addConstraint(Sketcher.Constraint("Tangent", 5, 2, 6, 1))
sketch13.addConstraint(Sketcher.Constraint("Tangent", 6, 2, 7, 1))
sketch13.addConstraint(Sketcher.Constraint("Tangent", 7, 2, 0, 1))
sketch13.addConstraint(Sketcher.Constraint("Horizontal", 0))
sketch13.addConstraint(Sketcher.Constraint("Vertical", 2))
sketch13.addConstraint(Sketcher.Constraint("Horizontal", 4))
sketch13.addConstraint(Sketcher.Constraint("Vertical", 6))
sketch13.addConstraint(Sketcher.Constraint("Equal", 1, 3))
sketch13.addConstraint(Sketcher.Constraint("Equal", 3, 5))
sketch13.addConstraint(Sketcher.Constraint("Equal", 5, 7))
sketch13.addConstraint(Sketcher.Constraint("Radius", 1, 3.0))
sketch13.addConstraint(Sketcher.Constraint("DistanceX", 0, 2, 0, 1, 8.0))
sketch13.addConstraint(Sketcher.Constraint("DistanceY", 2, 2, 2, 1, 2.0))
sketch13.addConstraint(Sketcher.Constraint("DistanceX", 1, 3, -1, 1, 4.0))
sketch13.addConstraint(Sketcher.Constraint("DistanceY", 1, 3, -1, 1, 1.0))
pocket6 = doc.addObject("PartDesign::Pocket", "Pocket005")
body.addObject(pocket6)
pocket6.Profile = sketch13
pocket6.Type = "ThroughAll"

# Sketch on XY plane
sketch14 = doc.addObject("Sketcher::SketchObject", "Sketch013")
body.addObject(sketch14)
sketch14.AttachmentSupport = (doc.XY_Plane, [""])
sketch14.MapMode = "FlatFace"
sketch14.AttachmentOffset = App.Placement(Vector(0, 0, 3.3), App.Rotation())
sketch14.addGeometry(Part.LineSegment(Vector(1.4, 20.5, 0), Vector(2.5, 23.4, 0)), False)
sketch14.addGeometry(Part.LineSegment(Vector(2.5, 23.4, 0), Vector(-2.3, 22.9, 0)), False)
sketch14.addGeometry(Part.LineSegment(Vector(-2.3, 22.9, 0), Vector(-1.4, 20.5, 0)), False)
sketch14.addGeometry(Part.ArcOfCircle(Part.Circle(Vector(0, 21, 0), Vector(0, 0, 1), 1.5), math.radians(-160), math.radians(-20)), False)
sketch14.addConstraint(Sketcher.Constraint("Coincident", 0, 2, 1, 1))
sketch14.addConstraint(Sketcher.Constraint("Coincident", 1, 2, 2, 1))
sketch14.addConstraint(Sketcher.Constraint("Tangent", 2, 2, 3, 1))
sketch14.addConstraint(Sketcher.Constraint("Tangent", 3, 2, 0, 1))
sketch14.addConstraint(Sketcher.Constraint("Symmetric", 2, 2, 3, 2, -2))
sketch14.addConstraint(Sketcher.Constraint("Radius", 3, 1.5))
sketch14.addConstraint(Sketcher.Constraint("Angle", 0, Q("70 deg")))
sketch14.addConstraint(Sketcher.Constraint("Angle", 1, Q("-174 deg")))
sketch14.addConstraint(Sketcher.Constraint("DistanceY", -1, 1, 3, 3, 21.0))
sketch14.addConstraint(Sketcher.Constraint("DistanceX", -1, 1, 0, 2, 2.464602))
pad4 = doc.addObject("PartDesign::Pad", "Pad003")
body.addObject(pad4)
pad4.Profile = sketch14
pad4.Length = 10
doc.recompute()

mirrored2 = doc.addObject("PartDesign::Mirrored", "Mirrored001")
body.addObject(mirrored2)
mirrored2.Originals = [pad4]
mirrored2.MirrorPlane = (doc.XZ_Plane, [""])
body.Tip = mirrored2

# Sketch on XZ plane
sketch15 = doc.addObject("Sketcher::SketchObject", "Sketch014")
body.addObject(sketch15)
sketch15.AttachmentSupport = (doc.XZ_Plane, [""])
sketch15.MapMode = "FlatFace"
add_polygon(sketch15, [(28.1, 11.7), (27.6, 8.9), (29.5, 9.2)])  # lines 0-2
sketch15.addConstraint(Sketcher.Constraint("Equal", 0, 2))
sketch15.addConstraint(Sketcher.Constraint("Angle", 0, Q("-100 deg")))
sketch15.addConstraint(Sketcher.Constraint("Angle", 1, Q("10 deg")))
sketch15.addConstraint(Sketcher.Constraint("Distance", 1, 2.0))
sketch15.addConstraint(Sketcher.Constraint("DistanceY", -1, 1, 0, 2, 8.862149))
sketch15.addConstraint(Sketcher.Constraint("DistanceX", -1, 1, 2, 2, 28.08233))

# Sketch on an angled plane
sketch16 = doc.addObject("Sketcher::SketchObject", "Sketch015")
body.addObject(sketch16)
sketch16.Placement = App.Placement(Vector(-0.68404, 0, 3.879385), App.Rotation(Vector(0.984807753, 0, 0.173648178), Vector(0, 1, 0), Vector(-0.173648178, 0, 0.984807753), "ZXY"))
sketch16.addGeometry(Part.LineSegment(Vector(-25.6, 22, 0), Vector(26.4, 28, 0)), False)
sketch16.addGeometry(Part.ArcOfCircle(Part.Circle(Vector(26.7, 25, 0), Vector(0, 0, 1), 3), math.radians(0), math.radians(97)), False)
sketch16.addGeometry(Part.LineSegment(Vector(29.7, 25, 0), Vector(29.7, -25, 0)), False)
sketch16.addGeometry(Part.ArcOfCircle(Part.Circle(Vector(26.7, -25, 0), Vector(0, 0, 1), 3), math.radians(-97), math.radians(0)), False)
sketch16.addGeometry(Part.LineSegment(Vector(26.4, -28, 0), Vector(-25.6, -22, 0)), False)
sketch16.addGeometry(Part.ArcOfCircle(Part.Circle(Vector(-25.3, -19, 0), Vector(0, 0, 1), 3), math.radians(180), math.radians(263)), False)
sketch16.addGeometry(Part.LineSegment(Vector(-28.3, -19, 0), Vector(-28.3, 19, 0)), False)
sketch16.addGeometry(Part.ArcOfCircle(Part.Circle(Vector(-25.3, 19, 0), Vector(0, 0, 1), 3), math.radians(97), math.radians(180)), False)
sketch16.addConstraint(Sketcher.Constraint("Tangent", 0, 2, 1, 2))
sketch16.addConstraint(Sketcher.Constraint("Tangent", 1, 1, 2, 1))
sketch16.addConstraint(Sketcher.Constraint("Tangent", 2, 2, 3, 2))
sketch16.addConstraint(Sketcher.Constraint("Tangent", 3, 1, 4, 1))
sketch16.addConstraint(Sketcher.Constraint("Tangent", 4, 2, 5, 2))
sketch16.addConstraint(Sketcher.Constraint("Tangent", 5, 1, 6, 1))
sketch16.addConstraint(Sketcher.Constraint("Tangent", 6, 2, 7, 2))
sketch16.addConstraint(Sketcher.Constraint("Tangent", 7, 1, 0, 1))
sketch16.addConstraint(Sketcher.Constraint("Vertical", 2))
sketch16.addConstraint(Sketcher.Constraint("Vertical", 6))
sketch16.addConstraint(Sketcher.Constraint("Equal", 1, 3))
sketch16.addConstraint(Sketcher.Constraint("Equal", 3, 5))
sketch16.addConstraint(Sketcher.Constraint("Equal", 5, 7))
sketch16.addConstraint(Sketcher.Constraint("Symmetric", 0, 2, 3, 1, -1))
sketch16.addConstraint(Sketcher.Constraint("Radius", 1, 3.0))
sketch16.addConstraint(Sketcher.Constraint("DistanceY", 2, 2, 2, 1, 50.0))
sketch16.addConstraint(Sketcher.Constraint("DistanceY", 6, 1, 6, 2, 38.0))
sketch16.addConstraint(Sketcher.Constraint("DistanceX", 5, 3, 3, 3, 52.0))
sketch16.addConstraint(Sketcher.Constraint("DistanceX", -1, 1, 0, 2, 26.35072))
doc.recompute()

subtractivepipe2 = doc.addObject("PartDesign::SubtractivePipe", "SubtractivePipe001")
body.addObject(subtractivepipe2)
subtractivepipe2.Profile = sketch15
subtractivepipe2.Spine = (sketch16, ["Edge1", "Edge2", "Edge3", "Edge4", "Edge5", "Edge6", "Edge7", "Edge8"])
body2 = doc.addObject("PartDesign::Body", "Body001")
doc.recompute()

body.Placement = App.Placement(Vector(0, 0, 45), App.Rotation(Vector(0, 0, 1), 0))
boolean = doc.addObject("PartDesign::Boolean", "Boolean")
body2.addObject(boolean)
boolean.Type = "Fuse"
boolean.addObjects([body])

doc.recompute()
